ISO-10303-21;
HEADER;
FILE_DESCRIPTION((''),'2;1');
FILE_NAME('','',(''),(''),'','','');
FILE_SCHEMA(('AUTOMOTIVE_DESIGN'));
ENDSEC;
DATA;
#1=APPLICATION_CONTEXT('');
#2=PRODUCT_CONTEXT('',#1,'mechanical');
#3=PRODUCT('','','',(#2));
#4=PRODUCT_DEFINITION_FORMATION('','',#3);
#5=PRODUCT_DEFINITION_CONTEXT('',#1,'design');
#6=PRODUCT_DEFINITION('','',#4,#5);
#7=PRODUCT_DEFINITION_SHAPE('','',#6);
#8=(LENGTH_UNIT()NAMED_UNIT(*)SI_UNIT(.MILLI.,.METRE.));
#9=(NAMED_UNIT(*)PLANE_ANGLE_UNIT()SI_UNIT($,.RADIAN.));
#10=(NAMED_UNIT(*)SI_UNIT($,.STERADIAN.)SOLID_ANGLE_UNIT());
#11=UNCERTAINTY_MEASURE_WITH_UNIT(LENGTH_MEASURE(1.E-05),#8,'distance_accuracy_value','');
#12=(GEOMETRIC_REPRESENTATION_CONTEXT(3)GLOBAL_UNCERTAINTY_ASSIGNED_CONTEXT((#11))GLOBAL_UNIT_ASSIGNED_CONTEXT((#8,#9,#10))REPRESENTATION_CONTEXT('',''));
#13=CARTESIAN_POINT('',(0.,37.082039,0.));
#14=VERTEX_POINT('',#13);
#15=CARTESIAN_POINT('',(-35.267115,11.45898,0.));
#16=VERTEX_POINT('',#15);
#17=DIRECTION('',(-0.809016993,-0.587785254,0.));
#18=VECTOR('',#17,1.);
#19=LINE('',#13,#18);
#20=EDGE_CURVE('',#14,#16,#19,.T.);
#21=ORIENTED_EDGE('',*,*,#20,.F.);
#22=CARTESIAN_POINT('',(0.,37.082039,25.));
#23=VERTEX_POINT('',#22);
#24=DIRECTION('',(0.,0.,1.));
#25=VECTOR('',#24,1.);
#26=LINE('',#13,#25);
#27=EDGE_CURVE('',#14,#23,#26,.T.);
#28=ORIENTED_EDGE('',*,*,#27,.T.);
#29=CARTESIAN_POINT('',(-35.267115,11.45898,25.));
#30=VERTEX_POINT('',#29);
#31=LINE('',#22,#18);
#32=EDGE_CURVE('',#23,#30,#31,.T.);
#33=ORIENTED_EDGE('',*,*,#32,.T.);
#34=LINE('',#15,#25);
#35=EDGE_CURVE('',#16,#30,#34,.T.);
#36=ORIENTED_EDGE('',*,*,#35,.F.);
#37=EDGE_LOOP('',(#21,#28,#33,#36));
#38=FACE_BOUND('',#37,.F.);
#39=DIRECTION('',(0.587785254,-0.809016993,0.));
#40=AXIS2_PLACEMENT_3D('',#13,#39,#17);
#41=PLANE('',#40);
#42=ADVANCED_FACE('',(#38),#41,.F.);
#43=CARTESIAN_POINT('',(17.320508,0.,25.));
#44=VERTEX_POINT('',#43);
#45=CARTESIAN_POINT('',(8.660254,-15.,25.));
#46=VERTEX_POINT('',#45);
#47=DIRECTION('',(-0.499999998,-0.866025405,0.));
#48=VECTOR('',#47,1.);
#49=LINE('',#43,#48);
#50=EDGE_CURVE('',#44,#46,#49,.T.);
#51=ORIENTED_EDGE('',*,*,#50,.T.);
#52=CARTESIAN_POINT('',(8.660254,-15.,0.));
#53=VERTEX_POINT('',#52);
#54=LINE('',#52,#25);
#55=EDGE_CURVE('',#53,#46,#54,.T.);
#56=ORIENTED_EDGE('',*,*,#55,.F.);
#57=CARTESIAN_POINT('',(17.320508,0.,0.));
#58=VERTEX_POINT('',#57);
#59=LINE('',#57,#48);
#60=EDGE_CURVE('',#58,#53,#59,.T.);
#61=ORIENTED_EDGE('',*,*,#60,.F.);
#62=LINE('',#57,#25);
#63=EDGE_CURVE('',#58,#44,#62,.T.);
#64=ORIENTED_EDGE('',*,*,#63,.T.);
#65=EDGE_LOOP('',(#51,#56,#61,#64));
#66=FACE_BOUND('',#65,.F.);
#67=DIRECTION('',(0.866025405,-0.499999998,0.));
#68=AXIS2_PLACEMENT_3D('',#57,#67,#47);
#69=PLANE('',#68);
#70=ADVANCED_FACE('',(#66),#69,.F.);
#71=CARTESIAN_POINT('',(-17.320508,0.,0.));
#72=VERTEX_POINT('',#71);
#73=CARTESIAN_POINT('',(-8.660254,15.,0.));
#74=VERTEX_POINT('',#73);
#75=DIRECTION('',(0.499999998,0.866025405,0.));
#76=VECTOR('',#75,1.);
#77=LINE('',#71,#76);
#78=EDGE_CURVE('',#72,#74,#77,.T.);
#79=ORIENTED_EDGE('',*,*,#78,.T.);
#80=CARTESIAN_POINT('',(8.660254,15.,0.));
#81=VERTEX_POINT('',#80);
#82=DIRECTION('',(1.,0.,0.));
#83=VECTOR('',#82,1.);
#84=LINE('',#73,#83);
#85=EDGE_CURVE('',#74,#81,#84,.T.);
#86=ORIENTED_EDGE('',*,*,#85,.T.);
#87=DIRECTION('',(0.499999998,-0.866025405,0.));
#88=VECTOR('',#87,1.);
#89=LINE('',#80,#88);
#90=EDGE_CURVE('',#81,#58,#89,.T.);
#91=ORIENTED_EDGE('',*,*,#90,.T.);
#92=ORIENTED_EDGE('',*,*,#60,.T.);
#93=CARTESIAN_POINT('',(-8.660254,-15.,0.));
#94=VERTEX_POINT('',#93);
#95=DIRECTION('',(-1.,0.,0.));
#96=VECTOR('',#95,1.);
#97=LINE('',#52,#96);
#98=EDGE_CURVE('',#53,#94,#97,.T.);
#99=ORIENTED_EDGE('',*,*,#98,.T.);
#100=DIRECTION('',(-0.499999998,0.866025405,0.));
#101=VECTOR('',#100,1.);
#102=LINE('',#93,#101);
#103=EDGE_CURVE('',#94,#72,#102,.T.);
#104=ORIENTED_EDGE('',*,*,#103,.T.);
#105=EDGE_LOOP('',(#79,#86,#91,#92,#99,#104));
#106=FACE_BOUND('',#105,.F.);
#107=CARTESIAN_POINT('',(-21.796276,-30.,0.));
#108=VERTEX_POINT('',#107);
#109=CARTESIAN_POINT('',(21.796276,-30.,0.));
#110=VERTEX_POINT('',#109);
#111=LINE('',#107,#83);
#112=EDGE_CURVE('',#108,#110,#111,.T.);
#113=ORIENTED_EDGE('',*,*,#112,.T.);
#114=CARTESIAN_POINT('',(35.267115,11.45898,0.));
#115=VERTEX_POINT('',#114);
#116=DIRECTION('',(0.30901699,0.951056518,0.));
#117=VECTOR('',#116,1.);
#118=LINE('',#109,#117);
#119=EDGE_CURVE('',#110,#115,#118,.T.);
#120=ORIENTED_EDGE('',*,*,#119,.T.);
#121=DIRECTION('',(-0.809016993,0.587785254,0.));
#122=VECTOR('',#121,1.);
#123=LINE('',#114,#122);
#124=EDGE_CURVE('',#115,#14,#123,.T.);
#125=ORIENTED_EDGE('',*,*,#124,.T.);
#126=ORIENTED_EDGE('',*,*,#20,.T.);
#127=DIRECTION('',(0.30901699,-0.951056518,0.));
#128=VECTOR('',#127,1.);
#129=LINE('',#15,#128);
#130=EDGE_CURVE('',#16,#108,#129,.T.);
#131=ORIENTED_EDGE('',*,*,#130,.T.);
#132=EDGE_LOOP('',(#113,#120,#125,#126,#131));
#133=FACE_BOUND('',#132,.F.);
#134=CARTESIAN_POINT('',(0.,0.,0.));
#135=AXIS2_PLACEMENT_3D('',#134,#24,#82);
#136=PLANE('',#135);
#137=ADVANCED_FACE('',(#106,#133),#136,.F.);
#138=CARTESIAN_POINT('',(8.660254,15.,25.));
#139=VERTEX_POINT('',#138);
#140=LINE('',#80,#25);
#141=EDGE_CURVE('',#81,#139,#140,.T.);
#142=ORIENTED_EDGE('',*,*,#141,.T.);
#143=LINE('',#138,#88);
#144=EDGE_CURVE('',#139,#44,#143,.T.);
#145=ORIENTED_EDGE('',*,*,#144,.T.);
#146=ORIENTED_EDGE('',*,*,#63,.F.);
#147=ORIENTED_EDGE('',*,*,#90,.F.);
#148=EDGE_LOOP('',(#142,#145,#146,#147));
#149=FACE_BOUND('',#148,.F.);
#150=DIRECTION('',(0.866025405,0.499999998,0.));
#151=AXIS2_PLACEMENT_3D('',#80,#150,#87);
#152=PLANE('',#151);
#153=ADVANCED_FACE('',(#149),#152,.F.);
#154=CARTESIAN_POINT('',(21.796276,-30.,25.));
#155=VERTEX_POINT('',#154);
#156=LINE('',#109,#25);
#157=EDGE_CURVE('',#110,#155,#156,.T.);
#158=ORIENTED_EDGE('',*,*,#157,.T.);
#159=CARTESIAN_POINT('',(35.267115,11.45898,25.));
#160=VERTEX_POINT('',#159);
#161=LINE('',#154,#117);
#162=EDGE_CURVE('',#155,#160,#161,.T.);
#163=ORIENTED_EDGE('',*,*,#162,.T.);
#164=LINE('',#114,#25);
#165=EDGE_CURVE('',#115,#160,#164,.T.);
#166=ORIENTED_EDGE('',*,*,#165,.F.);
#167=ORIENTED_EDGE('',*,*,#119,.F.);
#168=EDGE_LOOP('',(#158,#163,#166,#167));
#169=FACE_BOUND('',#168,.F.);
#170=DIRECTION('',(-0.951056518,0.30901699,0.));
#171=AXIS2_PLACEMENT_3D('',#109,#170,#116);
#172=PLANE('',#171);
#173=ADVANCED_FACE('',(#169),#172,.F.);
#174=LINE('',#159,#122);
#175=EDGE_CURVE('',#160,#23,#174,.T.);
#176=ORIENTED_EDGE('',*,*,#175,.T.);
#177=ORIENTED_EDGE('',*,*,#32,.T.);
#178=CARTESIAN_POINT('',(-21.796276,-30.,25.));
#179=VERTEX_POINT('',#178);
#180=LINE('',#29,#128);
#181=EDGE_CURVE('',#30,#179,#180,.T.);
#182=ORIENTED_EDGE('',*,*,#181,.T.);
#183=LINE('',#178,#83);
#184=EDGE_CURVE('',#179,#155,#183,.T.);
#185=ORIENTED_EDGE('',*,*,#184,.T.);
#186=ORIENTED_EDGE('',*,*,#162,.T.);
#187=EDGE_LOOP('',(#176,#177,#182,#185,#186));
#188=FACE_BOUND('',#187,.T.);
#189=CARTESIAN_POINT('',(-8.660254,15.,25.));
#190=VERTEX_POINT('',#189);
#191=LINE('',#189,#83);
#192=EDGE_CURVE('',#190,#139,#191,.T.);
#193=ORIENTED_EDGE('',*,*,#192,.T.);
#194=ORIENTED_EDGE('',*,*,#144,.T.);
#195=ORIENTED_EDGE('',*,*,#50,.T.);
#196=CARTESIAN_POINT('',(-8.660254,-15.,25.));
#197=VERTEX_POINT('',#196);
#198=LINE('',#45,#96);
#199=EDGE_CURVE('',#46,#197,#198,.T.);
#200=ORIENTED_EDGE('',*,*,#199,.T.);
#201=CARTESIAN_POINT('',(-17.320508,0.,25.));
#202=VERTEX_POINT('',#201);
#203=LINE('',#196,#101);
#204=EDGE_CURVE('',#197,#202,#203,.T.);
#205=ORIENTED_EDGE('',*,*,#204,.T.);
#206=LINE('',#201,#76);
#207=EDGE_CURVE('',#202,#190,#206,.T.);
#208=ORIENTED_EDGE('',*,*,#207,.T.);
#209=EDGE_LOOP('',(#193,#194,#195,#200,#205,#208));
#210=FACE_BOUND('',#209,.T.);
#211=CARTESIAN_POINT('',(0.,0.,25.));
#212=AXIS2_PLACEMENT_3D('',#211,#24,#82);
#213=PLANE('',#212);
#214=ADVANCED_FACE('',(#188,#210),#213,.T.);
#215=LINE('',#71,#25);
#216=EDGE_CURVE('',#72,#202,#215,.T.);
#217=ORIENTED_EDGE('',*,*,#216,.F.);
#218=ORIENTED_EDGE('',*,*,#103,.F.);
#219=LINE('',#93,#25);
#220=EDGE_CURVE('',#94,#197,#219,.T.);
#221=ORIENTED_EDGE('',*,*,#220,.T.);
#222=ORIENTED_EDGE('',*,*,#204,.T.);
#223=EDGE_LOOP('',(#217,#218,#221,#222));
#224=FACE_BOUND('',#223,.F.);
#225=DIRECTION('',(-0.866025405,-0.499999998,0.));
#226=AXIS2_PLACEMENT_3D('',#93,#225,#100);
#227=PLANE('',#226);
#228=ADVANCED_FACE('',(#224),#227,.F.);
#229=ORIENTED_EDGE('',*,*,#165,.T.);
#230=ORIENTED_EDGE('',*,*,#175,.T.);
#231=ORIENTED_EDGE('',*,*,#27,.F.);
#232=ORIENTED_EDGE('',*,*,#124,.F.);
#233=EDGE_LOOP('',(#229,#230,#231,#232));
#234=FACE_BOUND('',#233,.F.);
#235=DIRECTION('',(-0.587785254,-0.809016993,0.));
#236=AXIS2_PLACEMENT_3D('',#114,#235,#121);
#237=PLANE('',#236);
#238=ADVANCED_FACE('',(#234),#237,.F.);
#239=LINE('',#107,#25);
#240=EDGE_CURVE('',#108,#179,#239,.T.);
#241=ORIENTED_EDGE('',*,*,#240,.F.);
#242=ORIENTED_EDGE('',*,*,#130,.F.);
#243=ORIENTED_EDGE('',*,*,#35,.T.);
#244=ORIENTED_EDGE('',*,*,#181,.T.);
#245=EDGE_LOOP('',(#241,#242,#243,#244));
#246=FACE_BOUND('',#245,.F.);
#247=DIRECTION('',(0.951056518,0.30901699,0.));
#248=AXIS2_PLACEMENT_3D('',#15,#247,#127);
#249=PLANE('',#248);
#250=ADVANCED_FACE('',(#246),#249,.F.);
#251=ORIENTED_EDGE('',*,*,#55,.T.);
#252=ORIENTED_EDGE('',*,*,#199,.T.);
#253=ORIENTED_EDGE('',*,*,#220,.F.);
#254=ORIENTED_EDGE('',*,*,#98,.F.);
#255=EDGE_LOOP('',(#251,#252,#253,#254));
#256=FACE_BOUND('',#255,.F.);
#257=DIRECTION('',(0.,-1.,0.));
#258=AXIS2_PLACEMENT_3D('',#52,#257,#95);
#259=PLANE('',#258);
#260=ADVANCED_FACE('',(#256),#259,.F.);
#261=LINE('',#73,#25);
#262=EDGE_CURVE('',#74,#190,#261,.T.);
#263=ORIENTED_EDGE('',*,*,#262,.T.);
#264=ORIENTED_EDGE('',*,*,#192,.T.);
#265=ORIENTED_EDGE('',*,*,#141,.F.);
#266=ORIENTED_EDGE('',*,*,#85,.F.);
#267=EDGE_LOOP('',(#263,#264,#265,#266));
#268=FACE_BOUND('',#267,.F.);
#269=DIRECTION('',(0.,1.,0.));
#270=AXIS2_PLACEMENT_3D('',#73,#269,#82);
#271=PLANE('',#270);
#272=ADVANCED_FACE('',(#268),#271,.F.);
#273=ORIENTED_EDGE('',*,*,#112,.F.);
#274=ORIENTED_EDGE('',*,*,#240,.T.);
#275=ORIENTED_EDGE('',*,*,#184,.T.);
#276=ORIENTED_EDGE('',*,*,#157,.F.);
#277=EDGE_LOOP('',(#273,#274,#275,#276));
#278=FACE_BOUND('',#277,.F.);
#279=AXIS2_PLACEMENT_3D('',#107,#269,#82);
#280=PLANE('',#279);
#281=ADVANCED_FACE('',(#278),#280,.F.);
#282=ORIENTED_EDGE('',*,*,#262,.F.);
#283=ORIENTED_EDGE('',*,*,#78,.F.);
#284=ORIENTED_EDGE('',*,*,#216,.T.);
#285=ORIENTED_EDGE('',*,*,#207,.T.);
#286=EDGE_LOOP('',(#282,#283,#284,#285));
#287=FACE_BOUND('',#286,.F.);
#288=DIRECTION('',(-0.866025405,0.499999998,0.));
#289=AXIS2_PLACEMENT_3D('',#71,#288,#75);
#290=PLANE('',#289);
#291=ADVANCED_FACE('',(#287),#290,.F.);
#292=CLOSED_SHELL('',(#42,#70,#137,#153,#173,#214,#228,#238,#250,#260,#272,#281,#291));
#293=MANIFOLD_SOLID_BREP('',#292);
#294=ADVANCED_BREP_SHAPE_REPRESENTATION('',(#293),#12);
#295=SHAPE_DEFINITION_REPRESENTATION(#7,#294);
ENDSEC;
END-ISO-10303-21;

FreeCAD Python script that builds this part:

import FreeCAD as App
import Part
import Sketcher

V = App.Vector
Q = App.Units.Quantity

doc = App.newDocument("Part")
body = doc.addObject("PartDesign::Body", "Body")

# Sketch on XY plane
sketch1 = body.newObject("Sketcher::SketchObject", "Sketch")
sketch1.AttachmentSupport = (doc.getObject("XY_Plane"), [""])
sketch1.MapMode = "FlatFace"
sketch1.addGeometry([
    Part.LineSegment(V(22, -30, 0), V(35, 11, 0)),  # 0
    Part.LineSegment(V(35, 11, 0), V(0, 37, 0)),  # 1
    Part.LineSegment(V(0, 37, 0), V(-35, 11, 0)),  # 2
    Part.LineSegment(V(-35, 11, 0), V(-22, -30, 0)),  # 3
    Part.LineSegment(V(-22, -30, 0), V(22, -30, 0)),  # 4
    Part.LineSegment(V(-9, -15, 0), V(-17, 0, 0)),  # 5
    Part.LineSegment(V(-17, 0, 0), V(-9, 15, 0)),  # 6
    Part.LineSegment(V(-9, 15, 0), V(9, 15, 0)),  # 7
    Part.LineSegment(V(9, 15, 0), V(17, 0, 0)),  # 8
    Part.LineSegment(V(17, 0, 0), V(9, -15, 0)),  # 9
    Part.LineSegment(V(9, -15, 0), V(-9, -15, 0)),  # 10
], False)
sketch1.addConstraint([
    Sketcher.Constraint("Coincident", 0, 2, 1, 1),
    Sketcher.Constraint("Coincident", 1, 2, 2, 1),
    Sketcher.Constraint("Coincident", 2, 2, 3, 1),
    Sketcher.Constraint("Coincident", 3, 2, 4, 1),
    Sketcher.Constraint("Coincident", 4, 2, 0, 1),
    Sketcher.Constraint("Coincident", 5, 2, 6, 1),
    Sketcher.Constraint("Coincident", 6, 2, 7, 1),
    Sketcher.Constraint("Coincident", 7, 2, 8, 1),
    Sketcher.Constraint("Coincident", 8, 2, 9, 1),
    Sketcher.Constraint("Coincident", 9, 2, 10, 1),
    Sketcher.Constraint("Coincident", 10, 2, 5, 1),
    Sketcher.Constraint("Horizontal", 4),
    Sketcher.Constraint("Horizontal", 7),
    Sketcher.Constraint("Horizontal", 10),
    Sketcher.Constraint("Symmetric", 5, 2, 8, 2, -1, 1),
    Sketcher.Constraint("Symmetric", 6, 2, 9, 2, -1, 1),
    Sketcher.Constraint("Symmetric", 0, 2, 2, 2, -2),
    Sketcher.Constraint("PointOnObject", 1, 2, -2),
    Sketcher.Constraint("PointOnObject", 5, 2, -1),
    Sketcher.Constraint("Parallel", 5, 8),
    Sketcher.Constraint("Vertical", 7, 2, 9, 2),
    Sketcher.Constraint("Equal", 0, 1),
    Sketcher.Constraint("Equal", 2, 3),
    Sketcher.Constraint("Angle", 0, Q("72 deg")),
    Sketcher.Constraint("Angle", 1, Q("144 deg")),
    Sketcher.Constraint("Angle", 5, Q("120 deg")),
    Sketcher.Constraint("DistanceY", 3, 2, -1, 1, 30.0),
    Sketcher.Constraint("DistanceY", -1, 1, 6, 2, 15.0),
    Sketcher.Constraint("DistanceX", 4, 1, 4, 2, 43.592552),
    Sketcher.Constraint("DistanceX", 7, 1, 7, 2, 17.320508),
])
pad1 = body.newObject("PartDesign::Pad", "Pad")
pad1.Profile = sketch1
pad1.Length = 25

doc.recompute()
